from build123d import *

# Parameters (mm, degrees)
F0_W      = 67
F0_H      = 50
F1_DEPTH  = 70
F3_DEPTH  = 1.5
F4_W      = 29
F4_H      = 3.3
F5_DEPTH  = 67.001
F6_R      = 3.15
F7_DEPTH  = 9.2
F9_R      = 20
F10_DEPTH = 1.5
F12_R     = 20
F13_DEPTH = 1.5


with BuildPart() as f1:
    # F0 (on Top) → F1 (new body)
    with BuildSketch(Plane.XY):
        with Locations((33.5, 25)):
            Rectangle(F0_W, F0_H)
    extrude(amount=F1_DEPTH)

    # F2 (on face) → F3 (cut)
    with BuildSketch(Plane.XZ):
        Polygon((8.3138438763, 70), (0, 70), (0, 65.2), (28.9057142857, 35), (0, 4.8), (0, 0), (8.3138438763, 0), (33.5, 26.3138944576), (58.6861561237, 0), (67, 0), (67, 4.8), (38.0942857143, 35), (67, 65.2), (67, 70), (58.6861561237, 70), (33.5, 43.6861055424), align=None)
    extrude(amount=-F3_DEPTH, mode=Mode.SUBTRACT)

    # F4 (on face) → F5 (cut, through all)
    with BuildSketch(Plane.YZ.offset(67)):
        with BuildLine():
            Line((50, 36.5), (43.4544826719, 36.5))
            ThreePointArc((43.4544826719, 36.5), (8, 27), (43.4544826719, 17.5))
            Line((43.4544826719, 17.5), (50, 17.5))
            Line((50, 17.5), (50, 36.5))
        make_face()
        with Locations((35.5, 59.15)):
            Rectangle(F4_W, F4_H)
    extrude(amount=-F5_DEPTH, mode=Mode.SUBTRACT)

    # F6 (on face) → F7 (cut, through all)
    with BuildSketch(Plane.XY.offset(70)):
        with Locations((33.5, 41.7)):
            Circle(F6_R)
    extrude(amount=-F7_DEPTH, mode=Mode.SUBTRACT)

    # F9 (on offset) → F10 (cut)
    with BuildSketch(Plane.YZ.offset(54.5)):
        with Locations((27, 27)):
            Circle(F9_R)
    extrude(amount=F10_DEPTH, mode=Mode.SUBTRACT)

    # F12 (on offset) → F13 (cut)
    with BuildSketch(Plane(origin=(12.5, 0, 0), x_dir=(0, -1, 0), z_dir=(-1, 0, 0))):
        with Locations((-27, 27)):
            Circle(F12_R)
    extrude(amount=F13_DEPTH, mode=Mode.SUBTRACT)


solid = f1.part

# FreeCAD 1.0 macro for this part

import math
import FreeCAD as App
import Part
import Sketcher

V = App.Vector
Q = App.Units.Quantity

doc = App.newDocument("Part")
body = doc.addObject("PartDesign::Body", "Body")

sketch1 = body.newObject("Sketcher::SketchObject", "Sketch")
sketch1.AttachmentSupport = (doc.getObject("XY_Plane"), [""])
sketch1.MapMode = "FlatFace"
sketch1.addGeometry(Part.LineSegment(V(0, 50, 0), V(0, 0, 0)), False)
sketch1.addGeometry(Part.LineSegment(V(0, 0, 0), V(67, 0, 0)), False)
sketch1.addGeometry(Part.LineSegment(V(67, 0, 0), V(67, 50, 0)), False)
sketch1.addGeometry(Part.LineSegment(V(67, 50, 0), V(0, 50, 0)), False)
sketch1.addConstraint(Sketcher.Constraint("Coincident", 0, 2, 1, 1))
sketch1.addConstraint(Sketcher.Constraint("Coincident", 1, 2, 2, 1))
sketch1.addConstraint(Sketcher.Constraint("Coincident", 2, 2, 3, 1))
sketch1.addConstraint(Sketcher.Constraint("Coincident", 3, 2, 0, 1))
sketch1.addConstraint(Sketcher.Constraint("Vertical", 0))
sketch1.addConstraint(Sketcher.Constraint("Horizontal", 1))
sketch1.addConstraint(Sketcher.Constraint("Vertical", 2))
sketch1.addConstraint(Sketcher.Constraint("Horizontal", 3))
sketch1.addConstraint(Sketcher.Constraint("Coincident", 0, 2, -1, 1))
sketch1.addConstraint(Sketcher.Constraint("DistanceX", 1, 1, 1, 2, Q("67 mm")))
sketch1.addConstraint(Sketcher.Constraint("DistanceY", 0, 2, 0, 1, Q("50 mm")))
pad1 = body.newObject("PartDesign::Pad", "Pad")
pad1.Profile = sketch1
pad1.Length = 70

sketch2 = body.newObject("Sketcher::SketchObject", "Sketch001")
sketch2.AttachmentSupport = (doc.getObject("XZ_Plane"), [""])
sketch2.MapMode = "FlatFace"
sketch2.addGeometry(Part.LineSegment(V(8.3, 70, 0), V(0, 70, 0)), False)
sketch2.addGeometry(Part.LineSegment(V(0, 70, 0), V(0, 65.2, 0)), False)
sketch2.addGeometry(Part.LineSegment(V(0, 65.2, 0), V(28.9, 35, 0)), False)
sketch2.addGeometry(Part.LineSegment(V(28.9, 35, 0), V(0, 4.8, 0)), False)
sketch2.addGeometry(Part.LineSegment(V(0, 4.8, 0), V(0, 0, 0)), False)
sketch2.addGeometry(Part.LineSegment(V(0, 0, 0), V(8.3, 0, 0)), False)
sketch2.addGeometry(Part.LineSegment(V(8.3, 0, 0), V(33.5, 26.3, 0)), False)
sketch2.addGeometry(Part.LineSegment(V(33.5, 26.3, 0), V(58.7, 0, 0)), False)
sketch2.addGeometry(Part.LineSegment(V(58.7, 0, 0), V(67, 0, 0)), False)
sketch2.addGeometry(Part.LineSegment(V(67, 0, 0), V(67, 4.8, 0)), False)
sketch2.addGeometry(Part.LineSegment(V(67, 4.8, 0), V(38.1, 35, 0)), False)
sketch2.addGeometry(Part.LineSegment(V(38.1, 35, 0), V(67, 65.2, 0)), False)
sketch2.addGeometry(Part.LineSegment(V(67, 65.2, 0), V(67, 70, 0)), False)
sketch2.addGeometry(Part.LineSegment(V(67, 70, 0), V(58.7, 70, 0)), False)
sketch2.addGeometry(Part.LineSegment(V(58.7, 70, 0), V(33.5, 43.7, 0)), False)
sketch2.addGeometry(Part.LineSegment(V(33.5, 43.7, 0), V(8.3, 70, 0)), False)
sketch2.addConstraint(Sketcher.Constraint("Coincident", 0, 2, 1, 1))
sketch2.addConstraint(Sketcher.Constraint("Coincident", 1, 2, 2, 1))
sketch2.addConstraint(Sketcher.Constraint("Coincident", 2, 2, 3, 1))
sketch2.addConstraint(Sketcher.Constraint("Coincident", 3, 2, 4, 1))
sketch2.addConstraint(Sketcher.Constraint("Coincident", 4, 2, 5, 1))
sketch2.addConstraint(Sketcher.Constraint("Coincident", 5, 2, 6, 1))
sketch2.addConstraint(Sketcher.Constraint("Coincident", 6, 2, 7, 1))
sketch2.addConstraint(Sketcher.Constraint("Coincident", 7, 2, 8, 1))
sketch2.addConstraint(Sketcher.Constraint("Coincident", 8, 2, 9, 1))
sketch2.addConstraint(Sketcher.Constraint("Coincident", 9, 2, 10, 1))
sketch2.addConstraint(Sketcher.Constraint("Coincident", 10, 2, 11, 1))
sketch2.addConstraint(Sketcher.Constraint("Coincident", 11, 2, 12, 1))
sketch2.addConstraint(Sketcher.Constraint("Coincident", 12, 2, 13, 1))
sketch2.addConstraint(Sketcher.Constraint("Coincident", 13, 2, 14, 1))
sketch2.addConstraint(Sketcher.Constraint("Coincident", 14, 2, 15, 1))
sketch2.addConstraint(Sketcher.Constraint("Coincident", 15, 2, 0, 1))
sketch2.addConstraint(Sketcher.Constraint("Horizontal", 0))
sketch2.addConstraint(Sketcher.Constraint("Vertical", 1))
sketch2.addConstraint(Sketcher.Constraint("Vertical", 4))
sketch2.addConstraint(Sketcher.Constraint("Horizontal", 5))
sketch2.addConstraint(Sketcher.Constraint("Horizontal", 8))
sketch2.addConstraint(Sketcher.Constraint("Vertical", 9))
sketch2.addConstraint(Sketcher.Constraint("Vertical", 12))
sketch2.addConstraint(Sketcher.Constraint("Horizontal", 13))
sketch2.addConstraint(Sketcher.Constraint("Coincident", 4, 2, -1, 1))
sketch2.addConstraint(Sketcher.Constraint("PointOnObject", 0, 2, -2))
sketch2.addConstraint(Sketcher.Constraint("PointOnObject", 7, 2, -1))
sketch2.addConstraint(Sketcher.Constraint("Parallel", 3, 6))
sketch2.addConstraint(Sketcher.Constraint("Parallel", 2, 7))
sketch2.addConstraint(Sketcher.Constraint("Parallel", 7, 10))
sketch2.addConstraint(Sketcher.Constraint("Parallel", 6, 11))
sketch2.addConstraint(Sketcher.Constraint("Parallel", 11, 14))
sketch2.addConstraint(Sketcher.Constraint("Parallel", 10, 15))
sketch2.addConstraint(Sketcher.Constraint("Horizontal", 3, 2, 9, 2))
sketch2.addConstraint(Sketcher.Constraint("Horizontal", 2, 2, 10, 2))
sketch2.addConstraint(Sketcher.Constraint("Horizontal", 1, 2, 11, 2))
sketch2.addConstraint(Sketcher.Constraint("Horizontal", 0, 2, 12, 2))
sketch2.addConstraint(Sketcher.Constraint("Vertical", 9, 2, 11, 2))
sketch2.addConstraint(Sketcher.Constraint("Vertical", 7, 2, 13, 2))
sketch2.addConstraint(Sketcher.Constraint("Vertical", 6, 2, 14, 2))
sketch2.addConstraint(Sketcher.Constraint("Equal", 5, 8))
sketch2.addConstraint(Sketcher.Constraint("Equal", 1, 4))
sketch2.addConstraint(Sketcher.Constraint("DistanceY", 1, 2, 1, 1, Q("4.8 mm")))
sketch2.addConstraint(Sketcher.Constraint("DistanceY", -1, 1, 0, 2, Q("70 mm")))
sketch2.addConstraint(Sketcher.Constraint("DistanceX", -1, 1, 8, 2, Q("67 mm")))
sketch2.addConstraint(Sketcher.Constraint("Distance", 2, Q("41.804071 mm")))
sketch2.addConstraint(Sketcher.Constraint("DistanceX", 0, 2, 0, 1, Q("8.313844 mm")))
pocket1 = body.newObject("PartDesign::Pocket", "Pocket")
pocket1.Profile = sketch2
pocket1.Length = 1.5

sketch3 = body.newObject("Sketcher::SketchObject", "Sketch002")
sketch3.AttachmentSupport = (doc.getObject("YZ_Plane"), [""])
sketch3.MapMode = "FlatFace"
sketch3.AttachmentOffset = App.Placement(V(0, 0, 67), App.Rotation())
sketch3.addGeometry(Part.LineSegment(V(50, 36.5, 0), V(43.5, 36.5, 0)), False)
sketch3.addGeometry(Part.ArcOfCircle(Part.Circle(V(27, 27, 0), V(0, 0, 1), 19), math.radians(30), math.radians(330)), False)
sketch3.addGeometry(Part.LineSegment(V(43.5, 17.5, 0), V(50, 17.5, 0)), False)
sketch3.addGeometry(Part.LineSegment(V(50, 17.5, 0), V(50, 36.5, 0)), False)
sketch3.addGeometry(Part.LineSegment(V(21, 60.8, 0), V(21, 57.5, 0)), False)
sketch3.addGeometry(Part.LineSegment(V(21, 57.5, 0), V(50, 57.5, 0)), False)
sketch3.addGeometry(Part.LineSegment(V(50, 57.5, 0), V(50, 60.8, 0)), False)
sketch3.addGeometry(Part.LineSegment(V(50, 60.8, 0), V(21, 60.8, 0)), False)
sketch3.addConstraint(Sketcher.Constraint("Coincident", 0, 2, 1, 1))
sketch3.addConstraint(Sketcher.Constraint("Coincident", 1, 2, 2, 1))
sketch3.addConstraint(Sketcher.Constraint("Coincident", 2, 2, 3, 1))
sketch3.addConstraint(Sketcher.Constraint("Coincident", 3, 2, 0, 1))
sketch3.addConstraint(Sketcher.Constraint("Coincident", 4, 2, 5, 1))
sketch3.addConstraint(Sketcher.Constraint("Coincident", 5, 2, 6, 1))
sketch3.addConstraint(Sketcher.Constraint("Coincident", 6, 2, 7, 1))
sketch3.addConstraint(Sketcher.Constraint("Coincident", 7, 2, 4, 1))
sketch3.addConstraint(Sketcher.Constraint("Horizontal", 0))
sketch3.addConstraint(Sketcher.Constraint("Horizontal", 2))
sketch3.addConstraint(Sketcher.Constraint("Vertical", 3))
sketch3.addConstraint(Sketcher.Constraint("Vertical", 4))
sketch3.addConstraint(Sketcher.Constraint("Horizontal", 5))
sketch3.addConstraint(Sketcher.Constraint("Vertical", 6))
sketch3.addConstraint(Sketcher.Constraint("Horizontal", 7))
sketch3.addConstraint(Sketcher.Constraint("Vertical", 0, 2, 1, 2))
sketch3.addConstraint(Sketcher.Constraint("Vertical", 3, 2, 5, 2))
sketch3.addConstraint(Sketcher.Constraint("Radius", 1, Q("19 mm")))
sketch3.addConstraint(Sketcher.Constraint("DistanceX", 5, 1, 5, 2, Q("29 mm")))
sketch3.addConstraint(Sketcher.Constraint("DistanceY", 3, 1, 3, 2, Q("19 mm")))
sketch3.addConstraint(Sketcher.Constraint("DistanceY", 4, 2, 4, 1, Q("3.3 mm")))
sketch3.addConstraint(Sketcher.Constraint("DistanceX", -1, 1, 1, 3, Q("27 mm")))
sketch3.addConstraint(Sketcher.Constraint("DistanceY", -1, 1, 1, 3, Q("27 mm")))
sketch3.addConstraint(Sketcher.Constraint("DistanceX", -1, 1, 2, 2, Q("50 mm")))
sketch3.addConstraint(Sketcher.Constraint("DistanceY", 0, 2, 4, 2, Q("21 mm")))
pocket2 = body.newObject("PartDesign::Pocket", "Pocket001")
pocket2.Profile = sketch3
pocket2.Type = "ThroughAll"

sketch4 = body.newObject("Sketcher::SketchObject", "Sketch003")
sketch4.AttachmentSupport = (doc.getObject("XY_Plane"), [""])
sketch4.MapMode = "FlatFace"
sketch4.AttachmentOffset = App.Placement(V(0, 0, 70), App.Rotation())
sketch4.addGeometry(Part.Circle(V(33.5, 41.7, 0), V(0, 0, 1), 3.1), False)
sketch4.addConstraint(Sketcher.Constraint("Diameter", 0, Q("6.3 mm")))
sketch4.addConstraint(Sketcher.Constraint("DistanceX", -1, 1, 0, 3, Q("33.5 mm")))
sketch4.addConstraint(Sketcher.Constraint("DistanceY", -1, 1, 0, 3, Q("41.7 mm")))
pocket3 = body.newObject("PartDesign::Pocket", "Pocket002")
pocket3.Profile = sketch4
pocket3.Length = 9.2

sketch5 = body.newObject("Sketcher::SketchObject", "Sketch004")
sketch5.AttachmentSupport = (doc.getObject("YZ_Plane"), [""])
sketch5.MapMode = "FlatFace"
sketch5.AttachmentOffset = App.Placement(V(0, 0, 54.5), App.Rotation())
sketch5.addGeometry(Part.Circle(V(27, 27, 0), V(0, 0, 1), 20), False)
sketch5.addConstraint(Sketcher.Constraint("Diameter", 0, Q("40 mm")))
sketch5.addConstraint(Sketcher.Constraint("DistanceX", -1, 1, 0, 3, Q("27 mm")))
sketch5.addConstraint(Sketcher.Constraint("DistanceY", -1, 1, 0, 3, Q("27 mm")))
pocket4 = body.newObject("PartDesign::Pocket", "Pocket003")
pocket4.Profile = sketch5
pocket4.Length = 1.5
pocket4.Reversed = True

sketch6 = body.newObject("Sketcher::SketchObject", "Sketch005")
sketch6.AttachmentSupport = (doc.getObject("YZ_Plane"), [""])
sketch6.MapMode = "FlatFace"
sketch6.AttachmentOffset = App.Placement(V(0, 0, 12.5), App.Rotation())
sketch6.addGeometry(Part.Circle(V(27, 27, 0), V(0, 0, 1), 20), False)
sketch6.addConstraint(Sketcher.Constraint("Diameter", 0, Q("40 mm")))
sketch6.addConstraint(Sketcher.Constraint("DistanceX", -1, 1, 0, 3, Q("27 mm")))
sketch6.addConstraint(Sketcher.Constraint("DistanceY", -1, 1, 0, 3, Q("27 mm")))
pocket5 = body.newObject("PartDesign::Pocket", "Pocket004")
pocket5.Profile = sketch6
pocket5.Length = 1.5

doc.recompute()
